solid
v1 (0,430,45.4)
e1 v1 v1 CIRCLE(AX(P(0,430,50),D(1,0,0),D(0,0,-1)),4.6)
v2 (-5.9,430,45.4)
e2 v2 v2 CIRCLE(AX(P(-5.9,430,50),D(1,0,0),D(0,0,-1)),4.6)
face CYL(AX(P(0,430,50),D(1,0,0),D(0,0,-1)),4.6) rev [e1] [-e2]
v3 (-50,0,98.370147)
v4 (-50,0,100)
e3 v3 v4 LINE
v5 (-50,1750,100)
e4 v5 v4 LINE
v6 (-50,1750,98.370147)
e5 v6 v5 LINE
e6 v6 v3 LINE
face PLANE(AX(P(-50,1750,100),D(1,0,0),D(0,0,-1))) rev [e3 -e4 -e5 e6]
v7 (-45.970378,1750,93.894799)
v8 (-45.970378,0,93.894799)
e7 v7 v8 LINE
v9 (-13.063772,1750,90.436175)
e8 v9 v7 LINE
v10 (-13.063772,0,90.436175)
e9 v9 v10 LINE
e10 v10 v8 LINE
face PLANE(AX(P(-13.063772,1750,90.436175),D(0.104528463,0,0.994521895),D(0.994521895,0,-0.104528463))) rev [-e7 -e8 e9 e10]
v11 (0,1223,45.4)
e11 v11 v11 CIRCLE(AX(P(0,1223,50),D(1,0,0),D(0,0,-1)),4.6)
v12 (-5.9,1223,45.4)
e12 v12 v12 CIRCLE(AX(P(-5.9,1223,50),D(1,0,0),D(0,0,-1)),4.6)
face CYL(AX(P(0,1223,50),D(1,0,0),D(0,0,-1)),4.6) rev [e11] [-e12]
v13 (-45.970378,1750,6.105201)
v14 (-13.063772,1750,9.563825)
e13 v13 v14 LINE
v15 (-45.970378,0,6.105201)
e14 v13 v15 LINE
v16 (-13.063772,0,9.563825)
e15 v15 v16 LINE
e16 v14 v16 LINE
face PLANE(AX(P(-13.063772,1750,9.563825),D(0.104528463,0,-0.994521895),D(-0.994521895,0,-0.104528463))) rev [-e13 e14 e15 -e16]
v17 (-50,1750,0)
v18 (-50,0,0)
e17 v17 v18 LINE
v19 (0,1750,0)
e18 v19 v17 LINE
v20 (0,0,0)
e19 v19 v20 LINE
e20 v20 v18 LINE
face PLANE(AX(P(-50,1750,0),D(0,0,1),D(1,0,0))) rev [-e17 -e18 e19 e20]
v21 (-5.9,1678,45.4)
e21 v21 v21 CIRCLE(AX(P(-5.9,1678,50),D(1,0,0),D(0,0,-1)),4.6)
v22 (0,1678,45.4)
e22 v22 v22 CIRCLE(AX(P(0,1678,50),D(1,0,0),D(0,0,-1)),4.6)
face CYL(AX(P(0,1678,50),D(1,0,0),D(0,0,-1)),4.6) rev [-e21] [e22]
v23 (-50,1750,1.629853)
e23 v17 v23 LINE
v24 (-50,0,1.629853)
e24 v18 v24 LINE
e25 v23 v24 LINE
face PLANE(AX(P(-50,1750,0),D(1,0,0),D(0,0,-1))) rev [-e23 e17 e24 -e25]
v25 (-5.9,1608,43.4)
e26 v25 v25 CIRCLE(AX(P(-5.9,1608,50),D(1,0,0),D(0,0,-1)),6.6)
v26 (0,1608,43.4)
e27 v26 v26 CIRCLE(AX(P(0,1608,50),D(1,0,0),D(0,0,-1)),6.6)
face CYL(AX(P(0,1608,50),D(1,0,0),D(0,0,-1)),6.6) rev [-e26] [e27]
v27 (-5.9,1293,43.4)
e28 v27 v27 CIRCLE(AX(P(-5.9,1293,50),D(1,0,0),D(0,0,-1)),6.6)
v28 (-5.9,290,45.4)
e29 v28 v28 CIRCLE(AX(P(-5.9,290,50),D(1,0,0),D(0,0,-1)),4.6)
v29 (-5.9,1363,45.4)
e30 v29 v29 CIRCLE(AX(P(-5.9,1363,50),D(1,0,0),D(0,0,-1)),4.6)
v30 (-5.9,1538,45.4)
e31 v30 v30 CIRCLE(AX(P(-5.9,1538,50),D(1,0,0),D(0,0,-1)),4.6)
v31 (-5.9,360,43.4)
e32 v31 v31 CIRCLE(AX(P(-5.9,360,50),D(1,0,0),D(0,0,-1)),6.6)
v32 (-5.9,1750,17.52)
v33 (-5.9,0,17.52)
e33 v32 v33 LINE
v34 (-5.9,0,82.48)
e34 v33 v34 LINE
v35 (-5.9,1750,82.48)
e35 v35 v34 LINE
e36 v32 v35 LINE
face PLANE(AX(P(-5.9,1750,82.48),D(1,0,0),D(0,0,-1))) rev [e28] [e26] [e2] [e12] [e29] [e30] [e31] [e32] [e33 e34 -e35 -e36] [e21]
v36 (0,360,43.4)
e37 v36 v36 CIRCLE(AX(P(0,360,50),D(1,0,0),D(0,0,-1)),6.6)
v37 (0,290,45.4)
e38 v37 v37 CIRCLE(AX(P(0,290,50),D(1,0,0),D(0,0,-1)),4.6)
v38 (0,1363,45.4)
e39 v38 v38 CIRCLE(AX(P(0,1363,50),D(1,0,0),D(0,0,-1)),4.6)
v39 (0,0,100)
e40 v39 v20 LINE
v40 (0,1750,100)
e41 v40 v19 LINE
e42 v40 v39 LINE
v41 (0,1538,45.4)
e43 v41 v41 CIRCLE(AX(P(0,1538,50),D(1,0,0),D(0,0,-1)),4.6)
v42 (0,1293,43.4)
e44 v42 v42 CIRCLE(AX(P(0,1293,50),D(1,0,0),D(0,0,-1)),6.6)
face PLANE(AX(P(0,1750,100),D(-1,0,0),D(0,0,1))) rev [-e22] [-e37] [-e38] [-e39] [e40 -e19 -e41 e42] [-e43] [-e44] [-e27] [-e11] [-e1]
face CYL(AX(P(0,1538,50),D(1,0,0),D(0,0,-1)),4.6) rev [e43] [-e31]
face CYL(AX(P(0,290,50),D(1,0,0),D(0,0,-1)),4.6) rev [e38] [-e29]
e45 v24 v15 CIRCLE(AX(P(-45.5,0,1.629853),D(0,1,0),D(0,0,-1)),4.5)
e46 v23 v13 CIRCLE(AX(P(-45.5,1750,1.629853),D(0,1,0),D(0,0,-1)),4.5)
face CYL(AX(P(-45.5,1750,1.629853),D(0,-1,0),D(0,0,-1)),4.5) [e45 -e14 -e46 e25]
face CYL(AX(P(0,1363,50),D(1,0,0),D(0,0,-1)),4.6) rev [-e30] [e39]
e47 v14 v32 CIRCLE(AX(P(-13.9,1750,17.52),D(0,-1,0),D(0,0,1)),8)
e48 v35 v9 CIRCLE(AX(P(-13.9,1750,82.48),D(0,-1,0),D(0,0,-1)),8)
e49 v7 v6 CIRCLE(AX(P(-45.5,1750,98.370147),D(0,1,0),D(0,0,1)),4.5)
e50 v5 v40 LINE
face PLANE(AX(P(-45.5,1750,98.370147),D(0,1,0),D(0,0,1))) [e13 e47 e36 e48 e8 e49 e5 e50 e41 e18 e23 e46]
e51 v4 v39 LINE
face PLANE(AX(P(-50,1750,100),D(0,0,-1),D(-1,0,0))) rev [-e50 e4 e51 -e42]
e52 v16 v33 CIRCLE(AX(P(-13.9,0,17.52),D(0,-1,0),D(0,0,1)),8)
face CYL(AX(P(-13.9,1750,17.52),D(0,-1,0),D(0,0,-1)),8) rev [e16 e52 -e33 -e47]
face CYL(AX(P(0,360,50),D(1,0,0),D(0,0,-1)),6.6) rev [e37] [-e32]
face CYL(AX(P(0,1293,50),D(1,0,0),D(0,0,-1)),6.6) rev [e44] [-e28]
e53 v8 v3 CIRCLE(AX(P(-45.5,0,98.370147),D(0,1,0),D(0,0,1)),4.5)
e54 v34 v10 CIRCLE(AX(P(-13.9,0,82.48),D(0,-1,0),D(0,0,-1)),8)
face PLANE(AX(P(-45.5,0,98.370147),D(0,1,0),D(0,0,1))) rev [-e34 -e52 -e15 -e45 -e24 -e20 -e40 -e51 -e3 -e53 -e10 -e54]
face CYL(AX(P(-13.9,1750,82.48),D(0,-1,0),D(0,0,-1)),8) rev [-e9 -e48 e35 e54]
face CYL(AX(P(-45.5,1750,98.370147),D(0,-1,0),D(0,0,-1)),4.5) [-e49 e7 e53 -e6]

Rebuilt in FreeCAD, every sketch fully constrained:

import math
import FreeCAD as App
import Part
import Sketcher
Q = App.Units.Quantity

doc = App.newDocument("Part")
body = doc.addObject("PartDesign::Body", "Body")

# Sketch on XZ plane
sketch1 = doc.addObject("Sketcher::SketchObject", "Sketch")
body.addObject(sketch1)
sketch1.AttachmentSupport = (doc.XZ_Plane, [""])
sketch1.MapMode = "FlatFace"
sketch1.addGeometry(Part.LineSegment(App.Vector(-50, 100, 0), App.Vector(0, 100, 0)), False)
sketch1.addGeometry(Part.LineSegment(App.Vector(0, 100, 0), App.Vector(0, 0, 0)), False)
sketch1.addGeometry(Part.LineSegment(App.Vector(0, 0, 0), App.Vector(-50, 0, 0)), False)
sketch1.addGeometry(Part.LineSegment(App.Vector(-50, 0, 0), App.Vector(-50, 1.629853, 0)), False)
sketch1.addGeometry(Part.ArcOfCircle(Part.Circle(App.Vector(-45.5, 1.629853, 0), App.Vector(0, 0, 1), 4.5), math.radians(96), math.radians(180)), False)
sketch1.addGeometry(Part.LineSegment(App.Vector(-45.970378, 6.105201, 0), App.Vector(-13.063772, 9.563825, 0)), False)
sketch1.addGeometry(Part.ArcOfCircle(Part.Circle(App.Vector(-13.9, 17.52, 0), App.Vector(0, 0, 1), 8), math.radians(-84), math.radians(0)), False)
sketch1.addGeometry(Part.LineSegment(App.Vector(-5.9, 17.52, 0), App.Vector(-5.9, 82.48, 0)), False)
sketch1.addGeometry(Part.ArcOfCircle(Part.Circle(App.Vector(-13.9, 82.48, 0), App.Vector(0, 0, 1), 8), math.radians(0), math.radians(84)), False)
sketch1.addGeometry(Part.LineSegment(App.Vector(-13.063772, 90.436175, 0), App.Vector(-45.970378, 93.894799, 0)), False)
sketch1.addGeometry(Part.ArcOfCircle(Part.Circle(App.Vector(-45.5, 98.370147, 0), App.Vector(0, 0, 1), 4.5), math.radians(180), math.radians(264)), False)
sketch1.addGeometry(Part.LineSegment(App.Vector(-50, 98.370147, 0), App.Vector(-50, 100, 0)), False)
sketch1.addConstraint(Sketcher.Constraint("Coincident", 0, 2, 1, 1))
sketch1.addConstraint(Sketcher.Constraint("Coincident", 1, 2, 2, 1))
sketch1.addConstraint(Sketcher.Constraint("Coincident", 2, 2, 3, 1))
sketch1.addConstraint(Sketcher.Constraint("Tangent", 3, 2, 4, 2))
sketch1.addConstraint(Sketcher.Constraint("Tangent", 4, 1, 5, 1))
sketch1.addConstraint(Sketcher.Constraint("Tangent", 5, 2, 6, 1))
sketch1.addConstraint(Sketcher.Constraint("Tangent", 6, 2, 7, 1))
sketch1.addConstraint(Sketcher.Constraint("Tangent", 7, 2, 8, 1))
sketch1.addConstraint(Sketcher.Constraint("Tangent", 8, 2, 9, 1))
sketch1.addConstraint(Sketcher.Constraint("Tangent", 9, 2, 10, 2))
sketch1.addConstraint(Sketcher.Constraint("Tangent", 10, 1, 11, 1))
sketch1.addConstraint(Sketcher.Constraint("Coincident", 11, 2, 0, 1))
sketch1.addConstraint(Sketcher.Constraint("Horizontal", 0))
sketch1.addConstraint(Sketcher.Constraint("Vertical", 1))
sketch1.addConstraint(Sketcher.Constraint("Horizontal", 2))
sketch1.addConstraint(Sketcher.Constraint("Vertical", 3))
sketch1.addConstraint(Sketcher.Constraint("Vertical", 7))
sketch1.addConstraint(Sketcher.Constraint("Vertical", 11))
sketch1.addConstraint(Sketcher.Constraint("Coincident", 1, 2, -1, 1))
sketch1.addConstraint(Sketcher.Constraint("Equal", 6, 8))
sketch1.addConstraint(Sketcher.Constraint("Equal", 4, 10))
sketch1.addConstraint(Sketcher.Constraint("Vertical", 4, 3, 10, 3))
sketch1.addConstraint(Sketcher.Constraint("Vertical", 5, 2, 8, 2))
sketch1.addConstraint(Sketcher.Constraint("Equal", 3, 11))
sketch1.addConstraint(Sketcher.Constraint("Radius", 6, 8.0))
sketch1.addConstraint(Sketcher.Constraint("Radius", 4, 4.5))
sketch1.addConstraint(Sketcher.Constraint("DistanceX", 0, 1, 0, 2, 50.0))
sketch1.addConstraint(Sketcher.Constraint("DistanceY", 1, 2, 1, 1, 100.0))
sketch1.addConstraint(Sketcher.Constraint("Angle", 5, Q("6 deg")))
sketch1.addConstraint(Sketcher.Constraint("DistanceY", 7, 1, 7, 2, 64.96))
sketch1.addConstraint(Sketcher.Constraint("DistanceX", 6, 3, -1, 1, 13.9))
pad1 = doc.addObject("PartDesign::Pad", "Pad")
body.addObject(pad1)
pad1.Profile = sketch1
pad1.Length = 1750
pad1.Reversed = True

# Sketch on YZ plane
sketch2 = doc.addObject("Sketcher::SketchObject", "Sketch001")
body.addObject(sketch2)
sketch2.AttachmentSupport = (doc.YZ_Plane, [""])
sketch2.MapMode = "FlatFace"
sketch2.addGeometry(Part.Circle(App.Vector(1608, 50, 0), App.Vector(0, 0, 1), 6.6), False)
sketch2.addGeometry(Part.Circle(App.Vector(1293, 50, 0), App.Vector(0, 0, 1), 6.6), False)
sketch2.addGeometry(Part.Circle(App.Vector(360, 50, 0), App.Vector(0, 0, 1), 6.6), False)
sketch2.addConstraint(Sketcher.Constraint("Equal", 0, 1))
sketch2.addConstraint(Sketcher.Constraint("Equal", 1, 2))
sketch2.addConstraint(Sketcher.Constraint("Horizontal", 0, 3, 1, 3))
sketch2.addConstraint(Sketcher.Constraint("Horizontal", 1, 3, 2, 3))
sketch2.addConstraint(Sketcher.Constraint("Diameter", 0, 13.2))
sketch2.addConstraint(Sketcher.Constraint("DistanceX", -1, 1, 0, 3, 1608.0))
sketch2.addConstraint(Sketcher.Constraint("DistanceY", -1, 1, 0, 3, 50.0))
sketch2.addConstraint(Sketcher.Constraint("DistanceX", -1, 1, 1, 3, 1293.0))
sketch2.addConstraint(Sketcher.Constraint("DistanceX", -1, 1, 2, 3, 360.0))
doc.recompute()
hole = doc.addObject("PartDesign::Hole", "Hole")
body.addObject(hole)
hole.Profile = sketch2
hole.ThreadType = "None"
hole.Diameter = 13.2
hole.DepthType = "Dimension"
hole.Depth = 51.03432
hole.DrillPoint = "Angled"
hole.DrillPointAngle = 118

# Sketch on YZ plane
sketch3 = doc.addObject("Sketcher::SketchObject", "Sketch002")
body.addObject(sketch3)
sketch3.AttachmentSupport = (doc.YZ_Plane, [""])
sketch3.MapMode = "FlatFace"
sketch3.addGeometry(Part.Circle(App.Vector(1538, 50, 0), App.Vector(0, 0, 1), 4.6), False)
sketch3.addGeometry(Part.Circle(App.Vector(1678, 50, 0), App.Vector(0, 0, 1), 4.6), False)
sketch3.addGeometry(Part.Circle(App.Vector(1363, 50, 0), App.Vector(0, 0, 1), 4.6), False)
sketch3.addGeometry(Part.Circle(App.Vector(1223, 50, 0), App.Vector(0, 0, 1), 4.6), False)
sketch3.addGeometry(Part.Circle(App.Vector(430, 50, 0), App.Vector(0, 0, 1), 4.6), False)
sketch3.addGeometry(Part.Circle(App.Vector(290, 50, 0), App.Vector(0, 0, 1), 4.6), False)
sketch3.addConstraint(Sketcher.Constraint("Equal", 0, 1))
sketch3.addConstraint(Sketcher.Constraint("Equal", 1, 2))
sketch3.addConstraint(Sketcher.Constraint("Equal", 2, 3))
sketch3.addConstraint(Sketcher.Constraint("Equal", 3, 4))
sketch3.addConstraint(Sketcher.Constraint("Equal", 4, 5))
sketch3.addConstraint(Sketcher.Constraint("Horizontal", 0, 3, 1, 3))
sketch3.addConstraint(Sketcher.Constraint("Horizontal", 1, 3, 2, 3))
sketch3.addConstraint(Sketcher.Constraint("Horizontal", 2, 3, 3, 3))
sketch3.addConstraint(Sketcher.Constraint("Horizontal", 3, 3, 4, 3))
sketch3.addConstraint(Sketcher.Constraint("Horizontal", 4, 3, 5, 3))
sketch3.addConstraint(Sketcher.Constraint("Diameter", 0, 9.2))
sketch3.addConstraint(Sketcher.Constraint("DistanceX", -1, 1, 0, 3, 1538.0))
sketch3.addConstraint(Sketcher.Constraint("DistanceY", -1, 1, 0, 3, 50.0))
sketch3.addConstraint(Sketcher.Constraint("DistanceX", -1, 1, 1, 3, 1678.0))
sketch3.addConstraint(Sketcher.Constraint("DistanceX", -1, 1, 2, 3, 1363.0))
sketch3.addConstraint(Sketcher.Constraint("DistanceX", -1, 1, 3, 3, 1223.0))
sketch3.addConstraint(Sketcher.Constraint("DistanceX", -1, 1, 4, 3, 430.0))
sketch3.addConstraint(Sketcher.Constraint("DistanceX", -1, 1, 5, 3, 290.0))
doc.recompute()
hole2 = doc.addObject("PartDesign::Hole", "Hole001")
body.addObject(hole2)
hole2.Profile = sketch3
hole2.ThreadType = "None"
hole2.Diameter = 9.2
hole2.DepthType = "Dimension"
hole2.Depth = 52.236041
hole2.DrillPoint = "Angled"
hole2.DrillPointAngle = 118

doc.recompute()
